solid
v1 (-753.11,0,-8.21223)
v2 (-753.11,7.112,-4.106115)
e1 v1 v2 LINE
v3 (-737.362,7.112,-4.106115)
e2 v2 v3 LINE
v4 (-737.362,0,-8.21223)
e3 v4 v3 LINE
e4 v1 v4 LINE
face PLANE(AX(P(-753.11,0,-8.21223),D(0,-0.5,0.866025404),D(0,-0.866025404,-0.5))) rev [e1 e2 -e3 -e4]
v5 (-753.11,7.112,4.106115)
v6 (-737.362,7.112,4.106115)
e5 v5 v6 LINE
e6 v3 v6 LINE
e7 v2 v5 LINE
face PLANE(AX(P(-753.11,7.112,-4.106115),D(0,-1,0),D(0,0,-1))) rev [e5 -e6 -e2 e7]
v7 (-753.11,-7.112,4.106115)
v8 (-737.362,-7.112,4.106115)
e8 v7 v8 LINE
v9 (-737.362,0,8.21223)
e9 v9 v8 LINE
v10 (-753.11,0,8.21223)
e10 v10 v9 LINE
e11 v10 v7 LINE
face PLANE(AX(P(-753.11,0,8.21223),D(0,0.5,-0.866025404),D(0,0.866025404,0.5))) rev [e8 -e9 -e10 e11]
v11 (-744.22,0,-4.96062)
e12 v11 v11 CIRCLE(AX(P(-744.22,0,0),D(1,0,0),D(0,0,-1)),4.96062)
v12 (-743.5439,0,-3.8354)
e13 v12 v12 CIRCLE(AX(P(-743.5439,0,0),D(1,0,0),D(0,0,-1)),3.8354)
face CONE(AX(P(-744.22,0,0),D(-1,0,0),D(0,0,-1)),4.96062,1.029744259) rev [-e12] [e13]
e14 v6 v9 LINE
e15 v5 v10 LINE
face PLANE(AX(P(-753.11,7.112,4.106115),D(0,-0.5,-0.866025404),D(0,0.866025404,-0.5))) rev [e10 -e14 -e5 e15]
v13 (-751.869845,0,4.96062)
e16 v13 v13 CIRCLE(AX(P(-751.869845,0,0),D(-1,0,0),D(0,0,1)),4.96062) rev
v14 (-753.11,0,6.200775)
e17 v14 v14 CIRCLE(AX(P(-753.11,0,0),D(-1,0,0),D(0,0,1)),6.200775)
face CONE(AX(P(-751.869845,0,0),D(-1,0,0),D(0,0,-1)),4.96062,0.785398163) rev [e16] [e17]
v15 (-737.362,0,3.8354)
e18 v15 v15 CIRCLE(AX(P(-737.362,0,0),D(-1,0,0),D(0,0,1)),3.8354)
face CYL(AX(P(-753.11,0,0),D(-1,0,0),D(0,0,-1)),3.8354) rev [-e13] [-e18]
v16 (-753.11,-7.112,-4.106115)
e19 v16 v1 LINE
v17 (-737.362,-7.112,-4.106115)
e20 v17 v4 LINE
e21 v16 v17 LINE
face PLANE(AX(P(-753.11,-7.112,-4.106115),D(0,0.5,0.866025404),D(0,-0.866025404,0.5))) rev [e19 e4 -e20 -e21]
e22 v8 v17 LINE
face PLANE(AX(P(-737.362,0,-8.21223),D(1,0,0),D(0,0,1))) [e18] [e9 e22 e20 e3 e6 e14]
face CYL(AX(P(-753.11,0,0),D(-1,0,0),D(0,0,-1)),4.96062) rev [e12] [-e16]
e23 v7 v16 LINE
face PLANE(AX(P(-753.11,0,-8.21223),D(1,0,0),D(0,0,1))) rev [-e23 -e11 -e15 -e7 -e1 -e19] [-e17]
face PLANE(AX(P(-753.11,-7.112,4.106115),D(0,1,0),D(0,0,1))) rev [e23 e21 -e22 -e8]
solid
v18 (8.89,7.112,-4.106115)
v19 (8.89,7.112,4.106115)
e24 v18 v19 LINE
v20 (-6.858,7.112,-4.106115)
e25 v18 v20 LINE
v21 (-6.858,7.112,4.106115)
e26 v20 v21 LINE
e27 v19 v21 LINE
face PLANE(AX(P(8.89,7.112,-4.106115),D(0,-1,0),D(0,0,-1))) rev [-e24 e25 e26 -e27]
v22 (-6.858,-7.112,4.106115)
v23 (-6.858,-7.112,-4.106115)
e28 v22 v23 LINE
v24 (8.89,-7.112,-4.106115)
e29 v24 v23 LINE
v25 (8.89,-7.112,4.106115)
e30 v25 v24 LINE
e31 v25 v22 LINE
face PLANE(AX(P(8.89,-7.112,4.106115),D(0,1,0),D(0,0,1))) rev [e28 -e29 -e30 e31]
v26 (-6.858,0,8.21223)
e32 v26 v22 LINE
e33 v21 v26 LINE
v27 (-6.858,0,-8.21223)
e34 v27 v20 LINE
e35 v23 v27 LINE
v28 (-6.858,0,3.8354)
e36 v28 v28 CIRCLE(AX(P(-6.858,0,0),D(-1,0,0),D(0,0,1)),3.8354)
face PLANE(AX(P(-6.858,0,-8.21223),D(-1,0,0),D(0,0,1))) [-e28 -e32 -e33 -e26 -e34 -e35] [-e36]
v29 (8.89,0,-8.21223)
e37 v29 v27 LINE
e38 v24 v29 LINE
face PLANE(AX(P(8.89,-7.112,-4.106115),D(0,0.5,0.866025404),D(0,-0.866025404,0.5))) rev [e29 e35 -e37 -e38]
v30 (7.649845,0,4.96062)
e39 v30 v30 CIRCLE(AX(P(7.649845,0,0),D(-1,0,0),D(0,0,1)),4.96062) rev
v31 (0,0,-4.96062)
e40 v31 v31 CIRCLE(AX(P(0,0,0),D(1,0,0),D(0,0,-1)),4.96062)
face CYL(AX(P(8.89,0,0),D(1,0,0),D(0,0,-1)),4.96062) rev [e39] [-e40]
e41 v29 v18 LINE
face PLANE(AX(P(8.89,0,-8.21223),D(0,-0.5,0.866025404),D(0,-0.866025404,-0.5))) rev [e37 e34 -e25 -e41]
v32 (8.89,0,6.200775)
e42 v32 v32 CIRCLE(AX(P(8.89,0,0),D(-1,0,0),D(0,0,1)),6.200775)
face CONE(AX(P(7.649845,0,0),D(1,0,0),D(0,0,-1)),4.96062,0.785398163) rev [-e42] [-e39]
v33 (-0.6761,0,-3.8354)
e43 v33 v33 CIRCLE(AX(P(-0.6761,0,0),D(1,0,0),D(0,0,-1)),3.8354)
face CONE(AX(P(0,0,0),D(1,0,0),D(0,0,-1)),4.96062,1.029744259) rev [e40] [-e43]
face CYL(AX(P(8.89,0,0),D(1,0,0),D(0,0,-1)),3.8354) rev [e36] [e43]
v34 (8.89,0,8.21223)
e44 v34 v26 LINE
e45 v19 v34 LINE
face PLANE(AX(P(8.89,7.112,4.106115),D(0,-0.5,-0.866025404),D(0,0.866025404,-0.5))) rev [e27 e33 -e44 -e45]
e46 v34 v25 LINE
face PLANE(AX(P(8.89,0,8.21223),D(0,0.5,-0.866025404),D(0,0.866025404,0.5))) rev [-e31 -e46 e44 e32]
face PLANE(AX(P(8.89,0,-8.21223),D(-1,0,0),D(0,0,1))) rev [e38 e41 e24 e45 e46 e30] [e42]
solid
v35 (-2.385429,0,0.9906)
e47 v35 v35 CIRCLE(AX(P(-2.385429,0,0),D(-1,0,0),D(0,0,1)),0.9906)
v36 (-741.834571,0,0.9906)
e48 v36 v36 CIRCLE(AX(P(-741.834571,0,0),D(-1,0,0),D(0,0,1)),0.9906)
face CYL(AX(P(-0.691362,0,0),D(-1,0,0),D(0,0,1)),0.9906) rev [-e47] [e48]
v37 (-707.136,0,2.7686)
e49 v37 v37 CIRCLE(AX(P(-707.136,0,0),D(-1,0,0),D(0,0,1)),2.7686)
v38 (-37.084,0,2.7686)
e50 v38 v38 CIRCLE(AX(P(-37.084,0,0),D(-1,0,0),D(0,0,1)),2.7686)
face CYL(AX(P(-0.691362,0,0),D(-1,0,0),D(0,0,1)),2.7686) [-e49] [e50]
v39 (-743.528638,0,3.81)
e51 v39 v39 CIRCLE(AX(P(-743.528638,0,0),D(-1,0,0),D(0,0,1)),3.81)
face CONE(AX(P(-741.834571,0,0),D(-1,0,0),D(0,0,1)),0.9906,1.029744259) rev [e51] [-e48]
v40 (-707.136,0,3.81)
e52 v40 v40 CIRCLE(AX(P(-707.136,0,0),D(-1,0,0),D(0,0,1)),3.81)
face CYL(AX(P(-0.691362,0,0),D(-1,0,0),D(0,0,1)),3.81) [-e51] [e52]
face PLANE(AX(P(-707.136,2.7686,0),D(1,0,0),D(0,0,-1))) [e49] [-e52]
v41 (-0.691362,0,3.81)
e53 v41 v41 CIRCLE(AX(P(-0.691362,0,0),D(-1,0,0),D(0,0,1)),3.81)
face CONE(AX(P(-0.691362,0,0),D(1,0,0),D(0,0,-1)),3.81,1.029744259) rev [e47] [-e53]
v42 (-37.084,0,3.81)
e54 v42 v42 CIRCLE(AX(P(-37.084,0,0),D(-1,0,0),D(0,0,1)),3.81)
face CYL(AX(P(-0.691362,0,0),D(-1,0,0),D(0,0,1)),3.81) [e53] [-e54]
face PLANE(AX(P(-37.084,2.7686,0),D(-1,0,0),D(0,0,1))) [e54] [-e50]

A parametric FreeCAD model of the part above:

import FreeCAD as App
import Part
import Sketcher

V = App.Vector
Q = App.Units.Quantity


def edges_at(feature, points):
    """Names of the edges that pass closest to the given points."""
    edges = feature.Shape.Edges
    near = lambda p: min(range(len(edges)), key=lambda i: edges[i].distToShape(Part.Vertex(*p))[0])
    return sorted({f"Edge{near(p) + 1}" for p in points})

doc = App.newDocument("Part")
body = doc.addObject("PartDesign::Body", "Body")

sketch1 = body.newObject("Sketcher::SketchObject", "Sketch")
sketch1.AttachmentSupport = (doc.getObject("YZ_Plane"), [""])
sketch1.MapMode = "FlatFace"
sketch1.AttachmentOffset = App.Placement(V(0, 0, -0.27 * 25.4), App.Rotation())
sketch1.addGeometry([
    Part.LineSegment(V(7.112, -4.106115, 0), V(7.112, 4.106115, 0)),
    Part.LineSegment(V(7.112, 4.106115, 0), V(0, 8.21223, 0)),
    Part.LineSegment(V(0, 8.21223, 0), V(-7.112, 4.106115, 0)),
    Part.LineSegment(V(-7.112, 4.106115, 0), V(-7.112, -4.106115, 0)),
    Part.LineSegment(V(-7.112, -4.106115, 0), V(0, -8.21223, 0)),
    Part.LineSegment(V(0, -8.21223, 0), V(7.112, -4.106115, 0)),
], False)
sketch1.addConstraint([
    Sketcher.Constraint("Coincident", 0, 2, 1, 1),
    Sketcher.Constraint("Coincident", 1, 2, 2, 1),
    Sketcher.Constraint("Coincident", 2, 2, 3, 1),
    Sketcher.Constraint("Coincident", 3, 2, 4, 1),
    Sketcher.Constraint("Coincident", 4, 2, 5, 1),
    Sketcher.Constraint("Coincident", 5, 2, 0, 1),
    Sketcher.Constraint("Vertical", 0),
    Sketcher.Constraint("Vertical", 3),
    Sketcher.Constraint("Symmetric", 0, 2, 3, 2, -1, 1),
    Sketcher.Constraint("Symmetric", 1, 2, 4, 2, -1, 1),
    Sketcher.Constraint("PointOnObject", 1, 2, -2),
    Sketcher.Constraint("Parallel", 2, 5),
    Sketcher.Constraint("Horizontal", 0, 2, 2, 2),
    Sketcher.Constraint("Angle", 1, Q("150 deg")),
    Sketcher.Constraint("DistanceX", -1, 1, 0, 2, Q("0.28 in")),
    Sketcher.Constraint("DistanceY", 0, 1, 0, 2, 8.21223),
])
pad1 = body.newObject("PartDesign::Pad", "Pad")
pad1.Profile = sketch1
pad1.Length = Q("0.62 in")

sketch2 = body.newObject("Sketcher::SketchObject", "Sketch001")
sketch2.AttachmentSupport = (doc.getObject("XZ_Plane"), [""])
sketch2.MapMode = "FlatFace"
sketch2.addGeometry([
    Part.LineSegment(V(-6.858, 0, 0), V(8.89, 0, 0)),
    Part.LineSegment(V(8.89, 0, 0), V(8.89, -4.96062, 0)),
    Part.LineSegment(V(8.89, -4.96062, 0), V(0, -4.96062, 0)),
    Part.LineSegment(V(0, -4.96062, 0), V(-0.6761, -3.8354, 0)),
    Part.LineSegment(V(-0.6761, -3.8354, 0), V(-6.858, -3.8354, 0)),
    Part.LineSegment(V(-6.858, -3.8354, 0), V(-6.858, 0, 0)),
], False)
sketch2.addConstraint([
    Sketcher.Constraint("Coincident", 0, 2, 1, 1),
    Sketcher.Constraint("Coincident", 1, 2, 2, 1),
    Sketcher.Constraint("Coincident", 2, 2, 3, 1),
    Sketcher.Constraint("Coincident", 3, 2, 4, 1),
    Sketcher.Constraint("Coincident", 4, 2, 5, 1),
    Sketcher.Constraint("Coincident", 5, 2, 0, 1),
    Sketcher.Constraint("Horizontal", 0),
    Sketcher.Constraint("Vertical", 1),
    Sketcher.Constraint("Horizontal", 2),
    Sketcher.Constraint("Horizontal", 4),
    Sketcher.Constraint("Vertical", 5),
    Sketcher.Constraint("PointOnObject", 0, 2, -1),
    Sketcher.Constraint("PointOnObject", 2, 2, -2),
    Sketcher.Constraint("Angle", 3, Q("121 deg")),
    Sketcher.Constraint("DistanceX", 0, 1, 0, 2, Q("0.62 in")),
    Sketcher.Constraint("DistanceX", 2, 2, 2, 1, Q("0.35 in")),
    Sketcher.Constraint("DistanceY", 5, 1, 5, 2, Q("0.151 in")),
    Sketcher.Constraint("DistanceY", 1, 2, 1, 1, Q("0.1953 in")),
])
groove = body.newObject("PartDesign::Groove", "Groove")
groove.Profile = sketch2
groove.ReferenceAxis = (sketch2, ["H_Axis"])
groove.Angle = 360
doc.recompute()

chamfer = body.newObject("PartDesign::Chamfer", "Chamfer")
chamfer.Base = (groove, edges_at(groove, [(8.89, 0, 4.961)]))
chamfer.Size = 1.240155
body2 = doc.addObject("PartDesign::Body", "Body001")

sketch3 = body2.newObject("Sketcher::SketchObject", "Sketch002")
sketch3.AttachmentSupport = (doc.getObject("XY_Plane001"), [""])
sketch3.MapMode = "FlatFace"
sketch3.addGeometry([
    Part.LineSegment(V(-0.691362, 3.81, 0), V(-2.385429, 0.9906, 0)),
    Part.LineSegment(V(-2.385429, 0.9906, 0), V(-741.834571, 0.9906, 0)),
    Part.LineSegment(V(-741.834571, 0.9906, 0), V(-743.528638, 3.81, 0)),
    Part.LineSegment(V(-743.528638, 3.81, 0), V(-707.136, 3.81, 0)),
    Part.LineSegment(V(-707.136, 3.81, 0), V(-707.136, 2.7686, 0)),
    Part.LineSegment(V(-707.136, 2.7686, 0), V(-37.084, 2.7686, 0)),
    Part.LineSegment(V(-37.084, 2.7686, 0), V(-37.084, 3.81, 0)),
    Part.LineSegment(V(-37.084, 3.81, 0), V(-0.691362, 3.81, 0)),
], False)
sketch3.addConstraint([
    Sketcher.Constraint("Coincident", 0, 2, 1, 1),
    Sketcher.Constraint("Coincident", 1, 2, 2, 1),
    Sketcher.Constraint("Coincident", 2, 2, 3, 1),
    Sketcher.Constraint("Coincident", 3, 2, 4, 1),
    Sketcher.Constraint("Coincident", 4, 2, 5, 1),
    Sketcher.Constraint("Coincident", 5, 2, 6, 1),
    Sketcher.Constraint("Coincident", 6, 2, 7, 1),
    Sketcher.Constraint("Coincident", 7, 2, 0, 1),
    Sketcher.Constraint("Horizontal", 1),
    Sketcher.Constraint("Horizontal", 3),
    Sketcher.Constraint("Vertical", 4),
    Sketcher.Constraint("Horizontal", 5),
    Sketcher.Constraint("Vertical", 6),
    Sketcher.Constraint("Horizontal", 7),
    Sketcher.Constraint("Horizontal", 3, 2, 6, 2),
    Sketcher.Constraint("Equal", 3, 7),
    Sketcher.Constraint("Equal", 0, 2),
    Sketcher.Constraint("Angle", 0, Q("-121 deg")),
    Sketcher.Constraint("DistanceX", 5, 1, 5, 2, Q("26.38 in")),
    Sketcher.Constraint("DistanceY", 4, 2, 4, 1, Q("0.041 in")),
    Sketcher.Constraint("DistanceY", -1, 1, 2, 2, Q("0.15 in")),
    Sketcher.Constraint("DistanceX", 3, 2, -1, 1, Q("27.84 in")),
    Sketcher.Constraint("DistanceY", 1, 2, 4, 2, Q("0.07 in")),
    Sketcher.Constraint("DistanceX", 1, 2, 1, 1, 739.449143),
])
revolution = body2.newObject("PartDesign::Revolution", "Revolution")
revolution.Profile = sketch3
revolution.ReferenceAxis = (sketch3, ["H_Axis"])
revolution.Angle = 360
body3 = doc.addObject("PartDesign::Body", "Body002")
doc.recompute()

mirroring = doc.addObject("Part::Mirroring", "Mirroring")
mirroring.Source = body
mirroring.Base = V(-372.11, 0, 0)
mirroring.Normal = V(1, 0, 0)
body3.BaseFeature = mirroring
doc.recompute()
mirroring.Visibility = False

doc.recompute()
